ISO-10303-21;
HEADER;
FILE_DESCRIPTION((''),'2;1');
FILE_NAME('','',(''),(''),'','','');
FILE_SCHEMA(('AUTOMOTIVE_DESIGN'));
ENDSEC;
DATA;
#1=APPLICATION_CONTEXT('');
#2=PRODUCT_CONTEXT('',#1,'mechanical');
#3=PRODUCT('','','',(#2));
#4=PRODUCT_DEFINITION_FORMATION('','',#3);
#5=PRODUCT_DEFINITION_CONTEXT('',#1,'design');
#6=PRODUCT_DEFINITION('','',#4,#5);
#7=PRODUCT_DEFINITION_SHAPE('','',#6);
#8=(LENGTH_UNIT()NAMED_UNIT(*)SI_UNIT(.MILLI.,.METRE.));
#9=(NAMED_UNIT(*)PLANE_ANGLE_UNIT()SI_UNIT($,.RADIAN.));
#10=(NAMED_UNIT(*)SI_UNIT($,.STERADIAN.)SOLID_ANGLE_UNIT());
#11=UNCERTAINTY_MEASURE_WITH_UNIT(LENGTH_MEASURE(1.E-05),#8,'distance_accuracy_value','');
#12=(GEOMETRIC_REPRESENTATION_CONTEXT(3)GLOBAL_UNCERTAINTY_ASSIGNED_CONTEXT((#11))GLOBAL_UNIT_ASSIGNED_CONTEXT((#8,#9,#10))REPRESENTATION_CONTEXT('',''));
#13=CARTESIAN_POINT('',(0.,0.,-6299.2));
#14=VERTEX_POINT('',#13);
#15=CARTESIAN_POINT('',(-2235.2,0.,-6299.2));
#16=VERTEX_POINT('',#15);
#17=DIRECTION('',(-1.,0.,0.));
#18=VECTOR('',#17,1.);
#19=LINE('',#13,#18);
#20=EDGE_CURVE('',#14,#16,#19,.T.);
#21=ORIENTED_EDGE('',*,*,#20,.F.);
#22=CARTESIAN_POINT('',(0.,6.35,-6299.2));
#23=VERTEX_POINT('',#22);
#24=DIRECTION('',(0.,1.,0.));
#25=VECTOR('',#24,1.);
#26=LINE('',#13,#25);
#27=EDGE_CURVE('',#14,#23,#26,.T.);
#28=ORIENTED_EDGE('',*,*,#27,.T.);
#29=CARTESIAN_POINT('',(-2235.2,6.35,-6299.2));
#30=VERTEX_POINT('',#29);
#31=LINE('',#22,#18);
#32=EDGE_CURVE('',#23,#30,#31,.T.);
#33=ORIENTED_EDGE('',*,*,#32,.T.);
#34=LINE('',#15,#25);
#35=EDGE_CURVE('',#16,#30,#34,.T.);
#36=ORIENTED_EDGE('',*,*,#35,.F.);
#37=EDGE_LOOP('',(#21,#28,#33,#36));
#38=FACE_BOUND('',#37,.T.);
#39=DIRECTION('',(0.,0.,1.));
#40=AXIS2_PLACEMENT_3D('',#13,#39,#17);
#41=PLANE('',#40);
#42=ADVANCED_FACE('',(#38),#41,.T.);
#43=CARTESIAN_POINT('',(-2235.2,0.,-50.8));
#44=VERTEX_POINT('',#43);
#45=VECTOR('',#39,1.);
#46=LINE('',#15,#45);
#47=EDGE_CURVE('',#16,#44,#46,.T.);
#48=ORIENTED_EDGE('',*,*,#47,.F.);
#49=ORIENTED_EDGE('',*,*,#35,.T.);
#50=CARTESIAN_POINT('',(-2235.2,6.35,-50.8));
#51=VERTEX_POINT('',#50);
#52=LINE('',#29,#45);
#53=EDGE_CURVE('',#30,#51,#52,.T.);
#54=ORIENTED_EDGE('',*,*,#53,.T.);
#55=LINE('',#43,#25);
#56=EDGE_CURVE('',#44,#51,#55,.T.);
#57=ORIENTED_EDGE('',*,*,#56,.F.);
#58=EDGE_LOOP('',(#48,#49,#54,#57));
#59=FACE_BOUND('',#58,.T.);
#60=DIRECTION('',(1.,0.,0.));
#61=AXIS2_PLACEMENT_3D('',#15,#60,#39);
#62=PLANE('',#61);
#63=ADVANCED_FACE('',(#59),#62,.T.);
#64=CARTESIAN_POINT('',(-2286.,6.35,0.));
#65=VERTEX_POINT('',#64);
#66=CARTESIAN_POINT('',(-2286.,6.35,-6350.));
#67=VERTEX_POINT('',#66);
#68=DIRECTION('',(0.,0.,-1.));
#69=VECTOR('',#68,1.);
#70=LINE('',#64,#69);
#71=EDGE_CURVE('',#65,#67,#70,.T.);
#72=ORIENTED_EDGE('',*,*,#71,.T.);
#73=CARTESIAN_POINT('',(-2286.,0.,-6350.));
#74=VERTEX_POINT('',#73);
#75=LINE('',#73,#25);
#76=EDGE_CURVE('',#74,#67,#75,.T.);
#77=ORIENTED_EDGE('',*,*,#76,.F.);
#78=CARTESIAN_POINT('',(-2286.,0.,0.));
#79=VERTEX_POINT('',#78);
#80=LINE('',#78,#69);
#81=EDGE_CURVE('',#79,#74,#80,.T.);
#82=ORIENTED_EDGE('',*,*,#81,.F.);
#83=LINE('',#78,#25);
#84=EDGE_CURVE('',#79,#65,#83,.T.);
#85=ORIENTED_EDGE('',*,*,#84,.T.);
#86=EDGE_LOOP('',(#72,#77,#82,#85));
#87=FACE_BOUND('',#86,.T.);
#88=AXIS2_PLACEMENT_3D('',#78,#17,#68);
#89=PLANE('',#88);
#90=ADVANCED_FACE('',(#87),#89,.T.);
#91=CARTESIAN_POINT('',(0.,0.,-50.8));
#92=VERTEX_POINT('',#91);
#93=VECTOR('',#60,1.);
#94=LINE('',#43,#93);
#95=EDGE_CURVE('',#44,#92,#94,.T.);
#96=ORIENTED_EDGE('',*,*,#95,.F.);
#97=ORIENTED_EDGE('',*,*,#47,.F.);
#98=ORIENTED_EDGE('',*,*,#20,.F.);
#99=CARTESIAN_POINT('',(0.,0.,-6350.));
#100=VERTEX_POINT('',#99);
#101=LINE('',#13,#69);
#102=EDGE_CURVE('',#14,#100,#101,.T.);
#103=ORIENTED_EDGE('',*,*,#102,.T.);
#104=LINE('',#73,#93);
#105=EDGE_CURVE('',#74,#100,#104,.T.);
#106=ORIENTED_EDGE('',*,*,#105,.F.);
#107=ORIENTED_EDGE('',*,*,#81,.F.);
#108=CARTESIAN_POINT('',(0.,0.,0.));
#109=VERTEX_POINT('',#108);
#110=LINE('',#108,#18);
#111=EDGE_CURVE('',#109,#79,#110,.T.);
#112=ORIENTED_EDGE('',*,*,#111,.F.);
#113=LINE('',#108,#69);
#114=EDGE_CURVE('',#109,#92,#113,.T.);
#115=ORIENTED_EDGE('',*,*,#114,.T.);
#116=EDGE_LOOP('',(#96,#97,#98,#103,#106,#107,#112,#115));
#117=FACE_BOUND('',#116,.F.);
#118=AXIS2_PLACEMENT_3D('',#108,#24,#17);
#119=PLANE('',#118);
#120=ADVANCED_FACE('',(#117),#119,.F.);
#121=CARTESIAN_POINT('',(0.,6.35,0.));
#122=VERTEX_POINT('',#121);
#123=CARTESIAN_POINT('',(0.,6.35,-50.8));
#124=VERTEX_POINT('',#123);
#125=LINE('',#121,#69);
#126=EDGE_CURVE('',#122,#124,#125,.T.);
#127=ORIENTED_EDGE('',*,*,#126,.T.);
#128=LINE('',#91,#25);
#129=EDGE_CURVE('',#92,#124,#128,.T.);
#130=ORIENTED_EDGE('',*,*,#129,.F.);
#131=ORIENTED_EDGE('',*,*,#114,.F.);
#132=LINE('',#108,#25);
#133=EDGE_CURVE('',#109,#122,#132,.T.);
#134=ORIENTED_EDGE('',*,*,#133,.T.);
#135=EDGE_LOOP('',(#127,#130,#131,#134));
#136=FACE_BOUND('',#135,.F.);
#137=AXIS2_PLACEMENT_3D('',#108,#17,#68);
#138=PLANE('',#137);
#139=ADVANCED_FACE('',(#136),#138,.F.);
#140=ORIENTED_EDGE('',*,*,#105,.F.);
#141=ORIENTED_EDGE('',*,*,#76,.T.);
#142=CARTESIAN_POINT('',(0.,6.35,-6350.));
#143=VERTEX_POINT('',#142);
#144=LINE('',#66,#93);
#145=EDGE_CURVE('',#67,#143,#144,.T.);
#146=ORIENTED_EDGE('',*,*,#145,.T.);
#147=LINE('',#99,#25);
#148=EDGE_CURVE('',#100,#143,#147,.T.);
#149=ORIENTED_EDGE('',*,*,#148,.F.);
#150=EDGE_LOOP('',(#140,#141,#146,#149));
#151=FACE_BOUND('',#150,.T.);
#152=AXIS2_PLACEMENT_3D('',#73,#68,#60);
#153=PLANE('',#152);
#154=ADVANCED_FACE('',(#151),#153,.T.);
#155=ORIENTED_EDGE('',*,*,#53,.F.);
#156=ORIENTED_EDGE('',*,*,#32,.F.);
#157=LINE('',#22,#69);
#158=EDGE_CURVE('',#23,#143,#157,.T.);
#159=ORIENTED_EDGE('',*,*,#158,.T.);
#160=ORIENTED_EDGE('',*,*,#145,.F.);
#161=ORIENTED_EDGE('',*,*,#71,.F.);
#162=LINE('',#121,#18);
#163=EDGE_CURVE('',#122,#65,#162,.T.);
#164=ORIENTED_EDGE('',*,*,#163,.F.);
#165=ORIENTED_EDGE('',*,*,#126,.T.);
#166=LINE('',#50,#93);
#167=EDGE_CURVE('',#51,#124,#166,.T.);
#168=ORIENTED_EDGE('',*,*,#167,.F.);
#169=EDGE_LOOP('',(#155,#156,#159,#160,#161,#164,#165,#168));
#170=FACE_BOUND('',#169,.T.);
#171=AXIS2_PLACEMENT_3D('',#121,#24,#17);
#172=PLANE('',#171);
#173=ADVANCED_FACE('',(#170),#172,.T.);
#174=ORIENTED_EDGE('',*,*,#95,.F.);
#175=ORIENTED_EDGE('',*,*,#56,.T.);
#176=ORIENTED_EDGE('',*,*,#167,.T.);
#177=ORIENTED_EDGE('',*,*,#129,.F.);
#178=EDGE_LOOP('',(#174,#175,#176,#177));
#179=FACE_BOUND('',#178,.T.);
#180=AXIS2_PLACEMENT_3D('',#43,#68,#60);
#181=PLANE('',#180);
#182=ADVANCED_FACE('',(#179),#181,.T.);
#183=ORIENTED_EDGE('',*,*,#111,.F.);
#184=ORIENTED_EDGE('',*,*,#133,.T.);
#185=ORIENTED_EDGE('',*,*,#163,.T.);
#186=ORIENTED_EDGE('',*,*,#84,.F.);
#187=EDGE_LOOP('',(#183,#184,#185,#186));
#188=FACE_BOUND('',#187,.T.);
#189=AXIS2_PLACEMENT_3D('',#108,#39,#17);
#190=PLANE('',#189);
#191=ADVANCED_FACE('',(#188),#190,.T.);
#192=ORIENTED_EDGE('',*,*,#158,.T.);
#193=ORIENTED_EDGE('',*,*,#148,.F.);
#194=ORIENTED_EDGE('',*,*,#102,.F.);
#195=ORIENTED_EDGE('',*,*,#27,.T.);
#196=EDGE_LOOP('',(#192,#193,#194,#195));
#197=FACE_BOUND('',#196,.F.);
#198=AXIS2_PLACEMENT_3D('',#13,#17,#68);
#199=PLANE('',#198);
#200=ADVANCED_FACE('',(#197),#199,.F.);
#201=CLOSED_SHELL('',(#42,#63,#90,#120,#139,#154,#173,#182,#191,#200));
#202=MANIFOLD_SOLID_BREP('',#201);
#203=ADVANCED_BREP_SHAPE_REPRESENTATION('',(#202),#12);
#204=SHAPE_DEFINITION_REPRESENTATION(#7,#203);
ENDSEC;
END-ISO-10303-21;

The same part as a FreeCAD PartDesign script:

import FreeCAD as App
import Part
import Sketcher

V = App.Vector
Q = App.Units.Quantity

doc = App.newDocument("Part")
body = doc.addObject("PartDesign::Body", "Body")

sketch1 = body.newObject("Sketcher::SketchObject", "Sketch")
sketch1.AttachmentSupport = (doc.getObject("XZ_Plane"), [""])
sketch1.MapMode = "FlatFace"
sketch1.addGeometry([
    Part.LineSegment(V(-2286, 0, 0), V(0, 0, 0)),
    Part.LineSegment(V(0, 0, 0), V(0, -51, 0)),
    Part.LineSegment(V(0, -51, 0), V(-2235, -51, 0)),
    Part.LineSegment(V(-2235, -51, 0), V(-2235, -6299, 0)),
    Part.LineSegment(V(-2235, -6299, 0), V(0, -6299, 0)),
    Part.LineSegment(V(0, -6299, 0), V(0, -6350, 0)),
    Part.LineSegment(V(0, -6350, 0), V(-2286, -6350, 0)),
    Part.LineSegment(V(-2286, -6350, 0), V(-2286, 0, 0)),
], False)
sketch1.addConstraint([
    Sketcher.Constraint("Coincident", 0, 2, 1, 1),
    Sketcher.Constraint("Coincident", 1, 2, 2, 1),
    Sketcher.Constraint("Coincident", 2, 2, 3, 1),
    Sketcher.Constraint("Coincident", 3, 2, 4, 1),
    Sketcher.Constraint("Coincident", 4, 2, 5, 1),
    Sketcher.Constraint("Coincident", 5, 2, 6, 1),
    Sketcher.Constraint("Coincident", 6, 2, 7, 1),
    Sketcher.Constraint("Coincident", 7, 2, 0, 1),
    Sketcher.Constraint("Horizontal", 0),
    Sketcher.Constraint("Vertical", 1),
    Sketcher.Constraint("Horizontal", 2),
    Sketcher.Constraint("Vertical", 3),
    Sketcher.Constraint("Horizontal", 4),
    Sketcher.Constraint("Vertical", 5),
    Sketcher.Constraint("Horizontal", 6),
    Sketcher.Constraint("Vertical", 7),
    Sketcher.Constraint("Coincident", 0, 2, -1, 1),
    Sketcher.Constraint("PointOnObject", 4, 2, -2),
    Sketcher.Constraint("Equal", 1, 5),
    Sketcher.Constraint("DistanceX", 0, 1, 0, 2, Q("90 in")),
    Sketcher.Constraint("DistanceY", 1, 2, 1, 1, Q("2 in")),
    Sketcher.Constraint("DistanceY", 7, 1, 7, 2, Q("250 in")),
    Sketcher.Constraint("DistanceX", 6, 2, 3, 2, Q("2 in")),
])
pad1 = body.newObject("PartDesign::Pad", "Pad")
pad1.Profile = sketch1
pad1.Length = Q("0.25 in")
pad1.Reversed = True

doc.recompute()
